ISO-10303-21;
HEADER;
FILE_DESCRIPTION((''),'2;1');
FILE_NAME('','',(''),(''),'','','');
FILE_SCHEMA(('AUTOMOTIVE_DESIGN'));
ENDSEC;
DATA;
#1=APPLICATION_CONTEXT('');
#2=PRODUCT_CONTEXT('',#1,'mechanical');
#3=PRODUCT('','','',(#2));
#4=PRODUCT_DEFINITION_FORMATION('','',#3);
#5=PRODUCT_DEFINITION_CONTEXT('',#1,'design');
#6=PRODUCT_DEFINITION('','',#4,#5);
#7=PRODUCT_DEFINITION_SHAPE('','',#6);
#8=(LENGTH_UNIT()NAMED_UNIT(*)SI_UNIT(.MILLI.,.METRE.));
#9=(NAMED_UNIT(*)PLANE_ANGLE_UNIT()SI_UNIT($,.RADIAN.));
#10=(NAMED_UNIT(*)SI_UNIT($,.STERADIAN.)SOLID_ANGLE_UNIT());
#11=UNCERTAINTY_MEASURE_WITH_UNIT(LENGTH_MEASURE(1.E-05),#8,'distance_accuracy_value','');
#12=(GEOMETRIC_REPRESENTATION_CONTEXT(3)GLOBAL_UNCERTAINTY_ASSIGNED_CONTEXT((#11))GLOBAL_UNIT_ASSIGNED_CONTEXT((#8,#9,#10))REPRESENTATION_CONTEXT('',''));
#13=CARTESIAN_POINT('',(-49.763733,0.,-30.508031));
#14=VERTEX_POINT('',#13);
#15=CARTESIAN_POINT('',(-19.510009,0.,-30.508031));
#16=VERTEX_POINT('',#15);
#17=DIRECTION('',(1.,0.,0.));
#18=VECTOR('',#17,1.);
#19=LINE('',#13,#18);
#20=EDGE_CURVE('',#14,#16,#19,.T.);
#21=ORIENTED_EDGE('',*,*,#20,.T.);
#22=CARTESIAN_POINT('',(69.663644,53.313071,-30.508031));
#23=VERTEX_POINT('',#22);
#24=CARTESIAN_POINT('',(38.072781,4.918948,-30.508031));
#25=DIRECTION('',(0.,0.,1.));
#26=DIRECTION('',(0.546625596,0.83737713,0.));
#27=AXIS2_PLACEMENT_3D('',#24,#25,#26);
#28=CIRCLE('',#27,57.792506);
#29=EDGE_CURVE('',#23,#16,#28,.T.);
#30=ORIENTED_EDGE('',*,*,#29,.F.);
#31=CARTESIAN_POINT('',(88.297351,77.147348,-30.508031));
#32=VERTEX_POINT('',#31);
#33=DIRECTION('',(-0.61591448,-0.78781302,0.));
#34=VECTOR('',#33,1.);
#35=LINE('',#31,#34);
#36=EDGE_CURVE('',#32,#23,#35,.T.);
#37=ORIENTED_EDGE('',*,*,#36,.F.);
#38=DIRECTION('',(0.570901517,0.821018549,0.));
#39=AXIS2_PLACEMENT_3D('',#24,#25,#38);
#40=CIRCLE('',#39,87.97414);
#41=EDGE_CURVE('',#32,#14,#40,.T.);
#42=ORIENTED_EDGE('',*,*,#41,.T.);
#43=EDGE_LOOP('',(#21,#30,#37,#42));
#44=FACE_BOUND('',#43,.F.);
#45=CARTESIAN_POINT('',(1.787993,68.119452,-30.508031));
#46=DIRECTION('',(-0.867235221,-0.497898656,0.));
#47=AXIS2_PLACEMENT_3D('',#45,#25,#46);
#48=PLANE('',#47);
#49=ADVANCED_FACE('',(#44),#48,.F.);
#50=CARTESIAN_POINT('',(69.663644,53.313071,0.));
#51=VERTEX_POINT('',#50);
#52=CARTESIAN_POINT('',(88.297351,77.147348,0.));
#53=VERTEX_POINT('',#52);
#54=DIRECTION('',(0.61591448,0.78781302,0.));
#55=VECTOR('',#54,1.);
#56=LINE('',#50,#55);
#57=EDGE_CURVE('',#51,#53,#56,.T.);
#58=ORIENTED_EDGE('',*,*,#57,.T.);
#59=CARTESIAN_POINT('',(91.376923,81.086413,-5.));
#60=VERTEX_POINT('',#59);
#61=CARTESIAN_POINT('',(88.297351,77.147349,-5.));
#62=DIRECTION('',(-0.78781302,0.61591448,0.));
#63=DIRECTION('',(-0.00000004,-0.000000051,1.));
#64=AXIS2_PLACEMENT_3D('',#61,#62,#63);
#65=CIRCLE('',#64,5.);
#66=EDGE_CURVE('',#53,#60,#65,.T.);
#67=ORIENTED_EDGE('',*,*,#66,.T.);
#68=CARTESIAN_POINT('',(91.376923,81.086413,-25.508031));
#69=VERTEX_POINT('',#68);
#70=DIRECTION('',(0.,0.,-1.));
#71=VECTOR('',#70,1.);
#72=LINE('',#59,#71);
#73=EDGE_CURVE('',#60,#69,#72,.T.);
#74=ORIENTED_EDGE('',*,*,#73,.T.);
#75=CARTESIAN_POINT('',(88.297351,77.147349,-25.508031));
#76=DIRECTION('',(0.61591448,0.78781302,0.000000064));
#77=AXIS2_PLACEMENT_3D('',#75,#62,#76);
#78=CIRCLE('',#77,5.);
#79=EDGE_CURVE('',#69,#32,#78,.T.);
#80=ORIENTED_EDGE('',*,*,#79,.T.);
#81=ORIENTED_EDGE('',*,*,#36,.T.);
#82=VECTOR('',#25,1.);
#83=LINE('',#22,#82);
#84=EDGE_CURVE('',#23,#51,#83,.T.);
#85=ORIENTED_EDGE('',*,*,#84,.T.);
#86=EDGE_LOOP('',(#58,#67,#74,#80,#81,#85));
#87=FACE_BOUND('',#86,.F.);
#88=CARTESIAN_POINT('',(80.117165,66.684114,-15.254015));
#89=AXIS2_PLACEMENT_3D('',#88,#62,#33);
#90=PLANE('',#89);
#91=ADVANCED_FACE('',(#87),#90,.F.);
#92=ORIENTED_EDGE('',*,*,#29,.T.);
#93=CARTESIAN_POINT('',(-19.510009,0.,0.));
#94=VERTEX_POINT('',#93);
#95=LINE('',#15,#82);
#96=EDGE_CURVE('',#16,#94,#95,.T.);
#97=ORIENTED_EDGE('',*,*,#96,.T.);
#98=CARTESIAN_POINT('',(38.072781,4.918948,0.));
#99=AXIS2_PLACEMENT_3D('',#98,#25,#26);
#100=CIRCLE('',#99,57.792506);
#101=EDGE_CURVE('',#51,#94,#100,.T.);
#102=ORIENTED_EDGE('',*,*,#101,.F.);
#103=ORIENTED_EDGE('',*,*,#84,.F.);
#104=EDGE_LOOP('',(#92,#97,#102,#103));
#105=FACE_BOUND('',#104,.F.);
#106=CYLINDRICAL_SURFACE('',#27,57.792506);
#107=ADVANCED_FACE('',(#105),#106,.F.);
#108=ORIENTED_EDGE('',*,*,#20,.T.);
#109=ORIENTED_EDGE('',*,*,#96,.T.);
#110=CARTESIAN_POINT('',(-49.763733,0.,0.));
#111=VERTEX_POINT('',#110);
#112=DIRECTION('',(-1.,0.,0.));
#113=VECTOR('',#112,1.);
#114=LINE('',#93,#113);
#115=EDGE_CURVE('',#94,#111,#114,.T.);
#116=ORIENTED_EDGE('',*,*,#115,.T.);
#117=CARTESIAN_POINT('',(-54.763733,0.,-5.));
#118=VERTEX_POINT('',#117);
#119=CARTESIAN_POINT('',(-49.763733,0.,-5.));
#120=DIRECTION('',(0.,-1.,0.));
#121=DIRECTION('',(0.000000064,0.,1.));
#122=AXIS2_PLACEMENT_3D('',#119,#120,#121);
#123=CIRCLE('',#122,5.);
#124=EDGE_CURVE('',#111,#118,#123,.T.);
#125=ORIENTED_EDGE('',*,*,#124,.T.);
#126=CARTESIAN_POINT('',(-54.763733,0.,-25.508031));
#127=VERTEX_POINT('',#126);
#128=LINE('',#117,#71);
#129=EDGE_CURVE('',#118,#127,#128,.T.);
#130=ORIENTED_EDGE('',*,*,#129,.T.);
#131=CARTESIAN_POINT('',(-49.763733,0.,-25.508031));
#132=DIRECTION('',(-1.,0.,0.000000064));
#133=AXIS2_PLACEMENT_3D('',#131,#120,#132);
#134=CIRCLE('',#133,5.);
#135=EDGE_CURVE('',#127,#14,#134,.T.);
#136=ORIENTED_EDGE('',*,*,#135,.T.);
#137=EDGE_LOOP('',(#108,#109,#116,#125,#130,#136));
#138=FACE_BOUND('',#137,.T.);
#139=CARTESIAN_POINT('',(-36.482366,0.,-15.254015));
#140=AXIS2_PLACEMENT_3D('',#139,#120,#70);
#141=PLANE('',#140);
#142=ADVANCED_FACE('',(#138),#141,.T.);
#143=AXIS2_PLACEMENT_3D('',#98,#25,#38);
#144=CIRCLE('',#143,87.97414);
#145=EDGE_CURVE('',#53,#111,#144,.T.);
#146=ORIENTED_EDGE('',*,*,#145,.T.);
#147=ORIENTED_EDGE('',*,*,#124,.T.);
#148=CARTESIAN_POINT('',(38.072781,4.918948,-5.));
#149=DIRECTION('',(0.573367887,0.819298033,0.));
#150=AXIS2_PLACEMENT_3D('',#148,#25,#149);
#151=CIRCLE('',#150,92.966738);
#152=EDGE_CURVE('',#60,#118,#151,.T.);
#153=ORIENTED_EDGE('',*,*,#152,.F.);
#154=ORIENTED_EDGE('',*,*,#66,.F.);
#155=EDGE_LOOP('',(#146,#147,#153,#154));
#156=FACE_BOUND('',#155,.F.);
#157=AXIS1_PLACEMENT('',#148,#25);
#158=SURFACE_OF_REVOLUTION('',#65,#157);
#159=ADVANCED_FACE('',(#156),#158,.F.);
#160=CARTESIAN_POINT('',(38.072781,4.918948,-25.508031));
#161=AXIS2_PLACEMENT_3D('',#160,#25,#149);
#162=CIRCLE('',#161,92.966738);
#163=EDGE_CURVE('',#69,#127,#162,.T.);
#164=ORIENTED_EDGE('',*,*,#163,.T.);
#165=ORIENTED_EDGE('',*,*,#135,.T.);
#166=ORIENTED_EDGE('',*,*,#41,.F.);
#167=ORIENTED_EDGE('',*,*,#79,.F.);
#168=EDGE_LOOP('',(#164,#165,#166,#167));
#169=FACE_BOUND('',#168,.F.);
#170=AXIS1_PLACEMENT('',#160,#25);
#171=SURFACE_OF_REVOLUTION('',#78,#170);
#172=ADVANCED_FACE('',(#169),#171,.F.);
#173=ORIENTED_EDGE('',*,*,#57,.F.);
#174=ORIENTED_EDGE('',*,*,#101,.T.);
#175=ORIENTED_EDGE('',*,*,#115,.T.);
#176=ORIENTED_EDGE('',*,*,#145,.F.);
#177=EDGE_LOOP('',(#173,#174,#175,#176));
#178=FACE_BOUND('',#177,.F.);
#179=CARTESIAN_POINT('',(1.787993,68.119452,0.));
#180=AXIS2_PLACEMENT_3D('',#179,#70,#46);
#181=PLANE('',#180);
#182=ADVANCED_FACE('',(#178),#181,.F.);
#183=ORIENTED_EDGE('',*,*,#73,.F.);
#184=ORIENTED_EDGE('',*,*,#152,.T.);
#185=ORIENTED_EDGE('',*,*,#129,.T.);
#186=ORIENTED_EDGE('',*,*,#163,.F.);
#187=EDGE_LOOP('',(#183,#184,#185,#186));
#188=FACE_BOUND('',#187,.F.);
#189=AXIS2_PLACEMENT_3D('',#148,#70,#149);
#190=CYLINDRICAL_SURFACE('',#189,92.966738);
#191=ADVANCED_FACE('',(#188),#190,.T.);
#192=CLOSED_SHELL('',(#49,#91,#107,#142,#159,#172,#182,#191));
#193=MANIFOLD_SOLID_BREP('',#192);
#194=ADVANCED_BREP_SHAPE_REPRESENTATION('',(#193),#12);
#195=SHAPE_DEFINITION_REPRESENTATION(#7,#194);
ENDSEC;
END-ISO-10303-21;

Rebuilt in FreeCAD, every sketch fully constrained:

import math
import FreeCAD as App
import Part
import Sketcher
Q = App.Units.Quantity

doc = App.newDocument("Part")
params = doc.addObject("Spreadsheet::Sheet", "Params")
for row, (alias, value) in enumerate([
    ("sketch1_radius", "5 mm"),
], start=1):
    params.set(f"A{row}", alias)
    params.set(f"B{row}", "=" + value)
    params.setAlias(f"B{row}", alias)

body = doc.addObject("PartDesign::Body", "Body")

# Sketch on XZ plane
sketch1 = body.newObject("Sketcher::SketchObject", "Sketch")
sketch1.AttachmentSupport = (doc.getObject("XZ_Plane"), [""])
sketch1.MapMode = "FlatFace"
sketch1.addGeometry([
    Part.LineSegment(App.Vector(-19.5, 0, 0), App.Vector(-49.8, 0, 0)),  # 0
    Part.ArcOfCircle(Part.Circle(App.Vector(-49.8, -5, 0), App.Vector(0, 0, 1), 5), math.radians(90), math.radians(180)),  # 1
    Part.LineSegment(App.Vector(-54.8, -5, 0), App.Vector(-54.8, -25.5, 0)),  # 2
    Part.ArcOfCircle(Part.Circle(App.Vector(-49.8, -25.5, 0), App.Vector(0, 0, 1), 5), math.radians(180), math.radians(270)),  # 3
    Part.LineSegment(App.Vector(-49.8, -30.5, 0), App.Vector(-19.5, -30.5, 0)),  # 4
    Part.LineSegment(App.Vector(-19.5, -30.5, 0), App.Vector(-19.5, 0, 0)),  # 5
], False)
sketch1.addConstraint([
    Sketcher.Constraint("Tangent", 0, 2, 1, 1),
    Sketcher.Constraint("Tangent", 1, 2, 2, 1),
    Sketcher.Constraint("Tangent", 2, 2, 3, 1),
    Sketcher.Constraint("Tangent", 3, 2, 4, 1),
    Sketcher.Constraint("Coincident", 4, 2, 5, 1),
    Sketcher.Constraint("Coincident", 5, 2, 0, 1),
    Sketcher.Constraint("Horizontal", 0),
    Sketcher.Constraint("Vertical", 2),
    Sketcher.Constraint("Horizontal", 4),
    Sketcher.Constraint("Vertical", 5),
    Sketcher.Constraint("Equal", 1, 3),
    Sketcher.Constraint("PointOnObject", 0, 2, -1),
    Sketcher.Constraint("Radius", 1, Q("5 mm")),
    Sketcher.Constraint("DistanceY", 2, 2, 2, 1, Q("20.508031 mm")),
    Sketcher.Constraint("DistanceX", 0, 2, 0, 1, Q("30.253724 mm")),
    Sketcher.Constraint("DistanceX", 4, 2, -1, 1, Q("19.510009 mm")),
])
sketch1.setExpression("Constraints[12]", "Params.sketch1_radius")

# Sketch on XY plane
sketch2 = body.newObject("Sketcher::SketchObject", "Sketch001")
sketch2.AttachmentSupport = (doc.getObject("XY_Plane"), [""])
sketch2.MapMode = "FlatFace"
sketch2.addGeometry(Part.ArcOfCircle(Part.Circle(App.Vector(38, 5, 0), App.Vector(0, 0, 1), 58), math.radians(57), math.radians(185)), False)
sketch2.addConstraint([
    Sketcher.Constraint("PointOnObject", 0, 2, -1),
    Sketcher.Constraint("Radius", 0, Q("57.86287 mm")),
    Sketcher.Constraint("DistanceX", -1, 1, 0, 3, Q("38.072781 mm")),
    Sketcher.Constraint("DistanceX", -1, 1, 0, 1, Q("69.70714 mm")),
    Sketcher.Constraint("DistanceX", 0, 2, -1, 1, Q("19.580629 mm")),
])
doc.recompute()

additivepipe = body.newObject("PartDesign::AdditivePipe", "AdditivePipe")
additivepipe.Profile = sketch1
additivepipe.Spine = (sketch2, ["Edge1"])

doc.recompute()
